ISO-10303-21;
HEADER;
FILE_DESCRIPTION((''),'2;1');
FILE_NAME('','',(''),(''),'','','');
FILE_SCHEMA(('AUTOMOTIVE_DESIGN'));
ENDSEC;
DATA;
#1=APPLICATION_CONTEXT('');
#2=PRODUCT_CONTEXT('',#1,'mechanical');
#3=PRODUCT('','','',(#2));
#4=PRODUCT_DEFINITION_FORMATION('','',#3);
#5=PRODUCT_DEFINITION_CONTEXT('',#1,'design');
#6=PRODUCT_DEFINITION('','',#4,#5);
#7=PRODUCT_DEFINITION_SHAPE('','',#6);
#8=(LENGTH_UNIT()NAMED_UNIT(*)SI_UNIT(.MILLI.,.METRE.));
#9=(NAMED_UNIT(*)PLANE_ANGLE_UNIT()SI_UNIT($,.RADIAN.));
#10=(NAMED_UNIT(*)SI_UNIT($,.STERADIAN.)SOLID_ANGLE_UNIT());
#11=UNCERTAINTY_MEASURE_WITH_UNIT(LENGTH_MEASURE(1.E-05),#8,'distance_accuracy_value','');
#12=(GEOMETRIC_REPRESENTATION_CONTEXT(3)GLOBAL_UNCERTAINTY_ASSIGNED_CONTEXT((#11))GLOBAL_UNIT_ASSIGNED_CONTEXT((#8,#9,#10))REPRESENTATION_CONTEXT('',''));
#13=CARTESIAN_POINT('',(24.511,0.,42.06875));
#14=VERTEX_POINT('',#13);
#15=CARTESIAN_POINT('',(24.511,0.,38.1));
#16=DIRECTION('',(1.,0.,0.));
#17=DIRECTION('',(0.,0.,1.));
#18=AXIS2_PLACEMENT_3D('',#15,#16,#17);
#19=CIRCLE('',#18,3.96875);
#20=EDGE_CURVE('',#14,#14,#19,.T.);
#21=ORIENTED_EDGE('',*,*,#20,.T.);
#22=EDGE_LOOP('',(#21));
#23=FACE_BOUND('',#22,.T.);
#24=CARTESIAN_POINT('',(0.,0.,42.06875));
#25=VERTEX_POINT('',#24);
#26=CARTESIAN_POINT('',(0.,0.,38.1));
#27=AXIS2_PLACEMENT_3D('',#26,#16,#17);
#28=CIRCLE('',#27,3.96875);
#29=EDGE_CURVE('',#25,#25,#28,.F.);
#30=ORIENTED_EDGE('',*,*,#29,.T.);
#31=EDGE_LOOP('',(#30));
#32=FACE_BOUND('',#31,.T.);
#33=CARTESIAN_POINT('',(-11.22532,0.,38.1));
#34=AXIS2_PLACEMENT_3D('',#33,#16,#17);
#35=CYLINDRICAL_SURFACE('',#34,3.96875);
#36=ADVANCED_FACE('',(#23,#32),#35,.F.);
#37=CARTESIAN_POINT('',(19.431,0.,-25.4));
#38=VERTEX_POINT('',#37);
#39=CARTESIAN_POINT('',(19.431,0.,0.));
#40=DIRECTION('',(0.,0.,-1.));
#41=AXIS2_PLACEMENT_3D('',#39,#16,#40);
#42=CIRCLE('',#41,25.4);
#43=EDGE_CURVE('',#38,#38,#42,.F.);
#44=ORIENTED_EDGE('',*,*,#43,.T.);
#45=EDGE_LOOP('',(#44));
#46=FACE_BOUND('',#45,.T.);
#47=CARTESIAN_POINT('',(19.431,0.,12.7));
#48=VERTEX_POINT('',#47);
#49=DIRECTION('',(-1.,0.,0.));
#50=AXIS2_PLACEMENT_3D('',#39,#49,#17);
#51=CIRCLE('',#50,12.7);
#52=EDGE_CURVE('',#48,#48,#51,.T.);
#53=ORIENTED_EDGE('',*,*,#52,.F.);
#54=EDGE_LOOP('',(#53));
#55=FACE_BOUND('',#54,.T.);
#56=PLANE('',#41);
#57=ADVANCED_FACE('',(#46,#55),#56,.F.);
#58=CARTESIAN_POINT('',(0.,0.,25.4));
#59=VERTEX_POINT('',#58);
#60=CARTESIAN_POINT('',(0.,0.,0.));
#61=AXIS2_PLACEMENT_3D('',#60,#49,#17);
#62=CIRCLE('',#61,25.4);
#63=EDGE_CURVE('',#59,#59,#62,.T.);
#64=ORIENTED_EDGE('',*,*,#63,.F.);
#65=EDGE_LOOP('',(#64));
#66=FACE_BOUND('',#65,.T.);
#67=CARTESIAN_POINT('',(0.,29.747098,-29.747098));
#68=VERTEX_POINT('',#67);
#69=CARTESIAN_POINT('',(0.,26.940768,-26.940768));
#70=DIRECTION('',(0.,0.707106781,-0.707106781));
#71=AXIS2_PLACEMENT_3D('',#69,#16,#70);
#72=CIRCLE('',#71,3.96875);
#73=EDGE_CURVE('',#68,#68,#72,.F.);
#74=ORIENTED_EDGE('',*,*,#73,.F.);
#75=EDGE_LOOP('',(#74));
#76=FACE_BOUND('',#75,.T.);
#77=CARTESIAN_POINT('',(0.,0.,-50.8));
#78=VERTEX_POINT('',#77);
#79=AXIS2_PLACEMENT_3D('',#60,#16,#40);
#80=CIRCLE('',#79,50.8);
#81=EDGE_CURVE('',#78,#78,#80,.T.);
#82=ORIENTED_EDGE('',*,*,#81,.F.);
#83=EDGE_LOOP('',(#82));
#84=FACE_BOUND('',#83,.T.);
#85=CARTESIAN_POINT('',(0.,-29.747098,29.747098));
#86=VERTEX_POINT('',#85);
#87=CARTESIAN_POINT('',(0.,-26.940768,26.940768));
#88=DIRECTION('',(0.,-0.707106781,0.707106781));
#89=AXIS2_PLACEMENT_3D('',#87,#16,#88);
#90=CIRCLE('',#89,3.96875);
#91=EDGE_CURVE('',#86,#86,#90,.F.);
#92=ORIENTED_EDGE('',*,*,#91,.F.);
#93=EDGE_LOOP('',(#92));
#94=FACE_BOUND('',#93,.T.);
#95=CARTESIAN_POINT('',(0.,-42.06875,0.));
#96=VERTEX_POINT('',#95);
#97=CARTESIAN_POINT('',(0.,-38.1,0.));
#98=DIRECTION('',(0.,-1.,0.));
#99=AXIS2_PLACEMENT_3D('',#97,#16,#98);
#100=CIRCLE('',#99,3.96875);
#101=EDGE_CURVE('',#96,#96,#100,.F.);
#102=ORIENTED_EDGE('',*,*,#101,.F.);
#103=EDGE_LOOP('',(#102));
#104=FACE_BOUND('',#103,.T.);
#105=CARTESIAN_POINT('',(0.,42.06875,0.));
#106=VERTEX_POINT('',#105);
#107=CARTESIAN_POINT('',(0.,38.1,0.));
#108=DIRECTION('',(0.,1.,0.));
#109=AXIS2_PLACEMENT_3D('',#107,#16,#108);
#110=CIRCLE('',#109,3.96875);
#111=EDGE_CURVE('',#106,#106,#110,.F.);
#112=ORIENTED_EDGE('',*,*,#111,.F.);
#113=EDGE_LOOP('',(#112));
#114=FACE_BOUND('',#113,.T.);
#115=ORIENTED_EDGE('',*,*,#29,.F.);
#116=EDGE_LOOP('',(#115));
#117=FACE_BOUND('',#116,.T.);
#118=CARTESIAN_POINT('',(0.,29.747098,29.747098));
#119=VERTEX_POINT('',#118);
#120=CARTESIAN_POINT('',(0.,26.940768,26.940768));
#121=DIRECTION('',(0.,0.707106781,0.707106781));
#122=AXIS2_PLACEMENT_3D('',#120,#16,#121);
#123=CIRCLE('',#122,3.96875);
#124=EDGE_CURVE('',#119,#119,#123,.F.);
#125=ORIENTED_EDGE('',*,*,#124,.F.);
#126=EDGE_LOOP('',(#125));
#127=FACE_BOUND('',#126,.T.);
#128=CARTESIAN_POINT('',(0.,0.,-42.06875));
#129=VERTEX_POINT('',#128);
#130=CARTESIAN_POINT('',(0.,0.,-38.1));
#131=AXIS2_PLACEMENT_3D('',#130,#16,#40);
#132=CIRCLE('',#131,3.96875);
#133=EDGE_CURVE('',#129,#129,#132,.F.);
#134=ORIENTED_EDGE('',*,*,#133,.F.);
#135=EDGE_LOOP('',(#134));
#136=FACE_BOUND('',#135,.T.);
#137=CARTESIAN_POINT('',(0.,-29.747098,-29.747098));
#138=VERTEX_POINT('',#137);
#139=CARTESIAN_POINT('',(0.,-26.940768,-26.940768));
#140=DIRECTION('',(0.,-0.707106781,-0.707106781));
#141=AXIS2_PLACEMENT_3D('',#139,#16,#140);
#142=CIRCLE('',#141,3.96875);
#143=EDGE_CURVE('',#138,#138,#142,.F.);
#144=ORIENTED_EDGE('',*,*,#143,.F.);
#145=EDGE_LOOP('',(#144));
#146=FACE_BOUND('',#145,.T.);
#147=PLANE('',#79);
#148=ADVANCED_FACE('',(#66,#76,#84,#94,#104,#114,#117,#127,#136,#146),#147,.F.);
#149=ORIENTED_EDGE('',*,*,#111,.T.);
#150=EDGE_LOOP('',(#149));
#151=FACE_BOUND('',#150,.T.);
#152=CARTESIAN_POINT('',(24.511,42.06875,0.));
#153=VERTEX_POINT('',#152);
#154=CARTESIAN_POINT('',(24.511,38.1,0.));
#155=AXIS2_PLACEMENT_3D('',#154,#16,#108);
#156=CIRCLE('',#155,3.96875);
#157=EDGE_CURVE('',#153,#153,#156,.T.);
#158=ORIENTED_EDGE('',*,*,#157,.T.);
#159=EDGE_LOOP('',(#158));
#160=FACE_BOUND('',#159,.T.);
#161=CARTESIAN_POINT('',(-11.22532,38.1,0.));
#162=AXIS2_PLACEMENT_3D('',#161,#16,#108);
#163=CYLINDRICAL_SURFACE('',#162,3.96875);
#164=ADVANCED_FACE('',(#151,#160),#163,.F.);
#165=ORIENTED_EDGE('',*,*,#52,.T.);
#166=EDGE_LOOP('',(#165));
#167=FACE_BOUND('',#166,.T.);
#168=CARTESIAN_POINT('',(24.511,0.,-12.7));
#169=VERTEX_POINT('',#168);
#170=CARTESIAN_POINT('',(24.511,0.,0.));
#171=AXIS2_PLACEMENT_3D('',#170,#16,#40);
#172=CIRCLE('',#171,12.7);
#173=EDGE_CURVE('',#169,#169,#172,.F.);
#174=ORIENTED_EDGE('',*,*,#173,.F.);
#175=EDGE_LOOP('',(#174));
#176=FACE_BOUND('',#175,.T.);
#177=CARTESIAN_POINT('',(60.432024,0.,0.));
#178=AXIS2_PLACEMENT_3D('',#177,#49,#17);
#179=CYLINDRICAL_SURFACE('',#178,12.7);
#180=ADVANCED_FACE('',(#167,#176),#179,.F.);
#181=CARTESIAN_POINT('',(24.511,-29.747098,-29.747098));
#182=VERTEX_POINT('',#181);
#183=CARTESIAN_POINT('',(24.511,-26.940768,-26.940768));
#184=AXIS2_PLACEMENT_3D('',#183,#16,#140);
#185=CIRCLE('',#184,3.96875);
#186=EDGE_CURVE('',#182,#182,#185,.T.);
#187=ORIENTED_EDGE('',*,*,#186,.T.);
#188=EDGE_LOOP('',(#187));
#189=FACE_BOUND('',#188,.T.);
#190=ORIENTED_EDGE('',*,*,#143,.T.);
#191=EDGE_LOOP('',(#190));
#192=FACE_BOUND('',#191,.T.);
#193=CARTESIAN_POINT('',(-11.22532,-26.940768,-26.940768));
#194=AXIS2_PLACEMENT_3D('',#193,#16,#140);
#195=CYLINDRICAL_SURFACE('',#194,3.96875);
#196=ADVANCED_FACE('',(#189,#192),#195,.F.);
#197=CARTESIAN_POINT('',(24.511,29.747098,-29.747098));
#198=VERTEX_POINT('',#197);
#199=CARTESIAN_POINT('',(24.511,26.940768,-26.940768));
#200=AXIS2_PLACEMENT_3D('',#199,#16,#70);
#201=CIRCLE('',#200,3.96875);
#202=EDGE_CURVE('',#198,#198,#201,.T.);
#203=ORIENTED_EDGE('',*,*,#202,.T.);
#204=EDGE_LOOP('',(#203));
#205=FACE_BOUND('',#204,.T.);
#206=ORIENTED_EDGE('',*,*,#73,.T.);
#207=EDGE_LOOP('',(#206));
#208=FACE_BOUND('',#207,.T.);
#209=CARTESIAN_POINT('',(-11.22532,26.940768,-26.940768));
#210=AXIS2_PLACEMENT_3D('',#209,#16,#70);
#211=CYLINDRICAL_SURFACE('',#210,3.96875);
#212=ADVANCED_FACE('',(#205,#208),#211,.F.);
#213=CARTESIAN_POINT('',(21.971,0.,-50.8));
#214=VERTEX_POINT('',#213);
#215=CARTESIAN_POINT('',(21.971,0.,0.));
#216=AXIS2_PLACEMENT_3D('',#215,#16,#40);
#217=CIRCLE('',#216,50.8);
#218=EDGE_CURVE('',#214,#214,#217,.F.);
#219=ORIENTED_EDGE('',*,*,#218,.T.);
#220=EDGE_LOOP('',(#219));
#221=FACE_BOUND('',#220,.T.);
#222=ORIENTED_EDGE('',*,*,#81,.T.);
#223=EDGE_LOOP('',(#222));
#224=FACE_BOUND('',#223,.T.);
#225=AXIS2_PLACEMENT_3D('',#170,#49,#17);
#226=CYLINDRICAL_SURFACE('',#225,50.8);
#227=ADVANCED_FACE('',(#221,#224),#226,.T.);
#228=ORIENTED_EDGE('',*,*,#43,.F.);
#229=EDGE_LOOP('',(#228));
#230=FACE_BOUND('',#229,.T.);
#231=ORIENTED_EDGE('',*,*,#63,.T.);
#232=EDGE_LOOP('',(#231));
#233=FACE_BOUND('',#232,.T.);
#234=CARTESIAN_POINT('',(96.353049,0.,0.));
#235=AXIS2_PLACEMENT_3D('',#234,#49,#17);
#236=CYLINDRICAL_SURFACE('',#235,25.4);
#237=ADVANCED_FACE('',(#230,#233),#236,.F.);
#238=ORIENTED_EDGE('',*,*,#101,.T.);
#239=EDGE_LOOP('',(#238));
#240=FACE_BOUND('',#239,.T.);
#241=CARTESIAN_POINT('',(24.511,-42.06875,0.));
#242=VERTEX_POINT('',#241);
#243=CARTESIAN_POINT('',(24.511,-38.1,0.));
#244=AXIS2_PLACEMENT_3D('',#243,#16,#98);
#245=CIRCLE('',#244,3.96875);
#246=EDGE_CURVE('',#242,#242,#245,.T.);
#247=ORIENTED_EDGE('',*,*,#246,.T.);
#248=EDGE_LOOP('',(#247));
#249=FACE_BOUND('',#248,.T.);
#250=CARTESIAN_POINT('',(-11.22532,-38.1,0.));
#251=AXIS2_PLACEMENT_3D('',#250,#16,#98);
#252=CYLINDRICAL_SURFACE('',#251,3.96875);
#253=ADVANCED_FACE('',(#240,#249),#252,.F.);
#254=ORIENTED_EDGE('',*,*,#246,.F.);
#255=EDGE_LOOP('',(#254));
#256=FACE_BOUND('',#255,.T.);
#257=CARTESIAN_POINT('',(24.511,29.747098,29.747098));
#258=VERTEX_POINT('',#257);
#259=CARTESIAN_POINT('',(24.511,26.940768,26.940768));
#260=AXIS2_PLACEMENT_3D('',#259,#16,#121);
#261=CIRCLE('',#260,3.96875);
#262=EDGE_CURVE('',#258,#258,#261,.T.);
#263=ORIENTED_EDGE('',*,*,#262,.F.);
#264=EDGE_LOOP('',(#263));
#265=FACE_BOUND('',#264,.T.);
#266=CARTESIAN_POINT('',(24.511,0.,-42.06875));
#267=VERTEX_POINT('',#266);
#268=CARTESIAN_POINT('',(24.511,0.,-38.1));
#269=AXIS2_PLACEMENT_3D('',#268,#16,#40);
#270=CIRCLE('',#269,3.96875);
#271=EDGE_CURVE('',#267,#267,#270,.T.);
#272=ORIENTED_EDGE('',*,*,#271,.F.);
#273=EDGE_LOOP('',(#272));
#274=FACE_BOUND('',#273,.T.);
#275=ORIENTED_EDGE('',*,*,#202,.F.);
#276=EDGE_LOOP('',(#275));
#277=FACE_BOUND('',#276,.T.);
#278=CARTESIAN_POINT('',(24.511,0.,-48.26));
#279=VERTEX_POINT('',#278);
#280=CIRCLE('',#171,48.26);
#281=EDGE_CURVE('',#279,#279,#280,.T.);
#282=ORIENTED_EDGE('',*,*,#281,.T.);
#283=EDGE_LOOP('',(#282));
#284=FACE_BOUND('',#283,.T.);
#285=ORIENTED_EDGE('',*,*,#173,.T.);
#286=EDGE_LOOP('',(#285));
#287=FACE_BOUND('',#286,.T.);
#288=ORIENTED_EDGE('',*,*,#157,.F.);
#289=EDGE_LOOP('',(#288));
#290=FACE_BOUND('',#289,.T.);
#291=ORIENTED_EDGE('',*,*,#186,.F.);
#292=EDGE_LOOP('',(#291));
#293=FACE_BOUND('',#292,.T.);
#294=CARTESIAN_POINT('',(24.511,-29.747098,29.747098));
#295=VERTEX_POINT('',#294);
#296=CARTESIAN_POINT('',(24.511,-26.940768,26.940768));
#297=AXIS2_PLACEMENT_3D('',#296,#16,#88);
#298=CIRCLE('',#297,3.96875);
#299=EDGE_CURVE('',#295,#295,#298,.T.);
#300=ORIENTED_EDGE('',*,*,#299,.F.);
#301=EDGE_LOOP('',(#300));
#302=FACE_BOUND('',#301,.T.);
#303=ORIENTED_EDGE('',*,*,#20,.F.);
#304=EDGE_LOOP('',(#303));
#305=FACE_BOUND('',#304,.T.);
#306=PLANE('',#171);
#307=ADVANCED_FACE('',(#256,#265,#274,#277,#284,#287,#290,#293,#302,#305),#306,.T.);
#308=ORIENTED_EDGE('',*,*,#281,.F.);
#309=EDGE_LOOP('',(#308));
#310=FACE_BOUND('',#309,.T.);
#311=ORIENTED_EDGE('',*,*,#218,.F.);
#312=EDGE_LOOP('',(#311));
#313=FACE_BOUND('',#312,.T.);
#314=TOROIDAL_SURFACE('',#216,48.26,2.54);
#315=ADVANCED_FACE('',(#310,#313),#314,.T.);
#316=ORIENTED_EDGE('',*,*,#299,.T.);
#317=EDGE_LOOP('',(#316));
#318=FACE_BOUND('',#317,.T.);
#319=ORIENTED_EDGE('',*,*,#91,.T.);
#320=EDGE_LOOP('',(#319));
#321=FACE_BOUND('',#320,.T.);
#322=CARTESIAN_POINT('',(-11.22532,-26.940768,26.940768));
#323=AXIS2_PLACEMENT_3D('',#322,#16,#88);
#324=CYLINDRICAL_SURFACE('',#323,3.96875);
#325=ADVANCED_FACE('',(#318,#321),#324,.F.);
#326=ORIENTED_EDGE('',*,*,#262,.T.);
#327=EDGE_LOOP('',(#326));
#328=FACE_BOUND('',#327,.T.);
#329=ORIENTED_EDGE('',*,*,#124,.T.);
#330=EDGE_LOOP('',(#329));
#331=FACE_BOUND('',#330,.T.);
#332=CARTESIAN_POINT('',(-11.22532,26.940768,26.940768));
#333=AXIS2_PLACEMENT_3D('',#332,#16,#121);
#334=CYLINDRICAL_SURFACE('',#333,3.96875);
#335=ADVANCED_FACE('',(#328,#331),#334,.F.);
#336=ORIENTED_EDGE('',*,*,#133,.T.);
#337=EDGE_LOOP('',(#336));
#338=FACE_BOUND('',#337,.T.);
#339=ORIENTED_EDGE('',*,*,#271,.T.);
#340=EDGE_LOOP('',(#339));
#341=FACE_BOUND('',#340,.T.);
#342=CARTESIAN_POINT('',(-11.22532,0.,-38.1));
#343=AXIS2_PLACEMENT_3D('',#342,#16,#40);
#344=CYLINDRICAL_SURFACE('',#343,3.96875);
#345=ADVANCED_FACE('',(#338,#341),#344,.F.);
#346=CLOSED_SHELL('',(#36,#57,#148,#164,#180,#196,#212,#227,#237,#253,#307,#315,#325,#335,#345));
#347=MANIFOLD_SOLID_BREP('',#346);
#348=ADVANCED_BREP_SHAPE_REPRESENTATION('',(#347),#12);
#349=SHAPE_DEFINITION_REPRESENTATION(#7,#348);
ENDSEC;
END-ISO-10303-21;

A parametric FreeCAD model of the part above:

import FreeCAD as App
import Part
import Sketcher
from FreeCAD import Vector
Q = App.Units.Quantity


def edges_at(feature, points):
    """Names of the edges that pass closest to the given points."""
    edges = feature.Shape.Edges
    near = lambda p: min(range(len(edges)), key=lambda i: edges[i].distToShape(Part.Vertex(*p))[0])
    return sorted({f"Edge{near(p) + 1}" for p in points})

doc = App.newDocument("Part")
body = doc.addObject("PartDesign::Body", "Body")

sketch1 = doc.addObject("Sketcher::SketchObject", "Sketch")
body.addObject(sketch1)
sketch1.AttachmentSupport = (doc.YZ_Plane, [""])
sketch1.MapMode = "FlatFace"
sketch1.addGeometry(Part.Circle(Vector(0, 0, 0), Vector(0, 0, 1), 51), False)
sketch1.addConstraint(Sketcher.Constraint("Coincident", 0, 3, -1, 1))
sketch1.addConstraint(Sketcher.Constraint("Diameter", 0, Q("4 in")))
pad1 = doc.addObject("PartDesign::Pad", "Pad")
body.addObject(pad1)
pad1.Profile = sketch1
pad1.Length = Q("0.965 in")
doc.recompute()

fillet = doc.addObject("PartDesign::Fillet", "Fillet")
body.addObject(fillet)
fillet.Base = (pad1, edges_at(pad1, [(24.511, 0, 50.8)]))
fillet.Radius = Q("0.1 in")

sketch2 = doc.addObject("Sketcher::SketchObject", "Sketch001")
body.addObject(sketch2)
sketch2.AttachmentSupport = (doc.YZ_Plane, [""])
sketch2.MapMode = "FlatFace"
sketch2.AttachmentOffset = App.Placement(Vector(0, 0, 0.965 * 25.4), App.Rotation())
sketch2.addGeometry(Part.Circle(Vector(0, -38.1, 0), Vector(0, 0, 1), 4), False)
sketch2.addConstraint(Sketcher.Constraint("PointOnObject", 0, 3, -2))
sketch2.addConstraint(Sketcher.Constraint("Diameter", 0, Q("0.3125 in")))
sketch2.addConstraint(Sketcher.Constraint("DistanceY", 0, 3, -1, 1, Q("1.5 in")))
pocket1 = doc.addObject("PartDesign::Pocket", "Pocket")
body.addObject(pocket1)
pocket1.Profile = sketch2
pocket1.Length = Q("0.965 in")
doc.recompute()

polarpattern = doc.addObject("PartDesign::PolarPattern", "PolarPattern")
body.addObject(polarpattern)
polarpattern.Originals = [pocket1]
polarpattern.Axis = (doc.X_Axis, [""])
polarpattern.Angle = 360
polarpattern.Occurrences = 8
body.Tip = polarpattern

sketch3 = doc.addObject("Sketcher::SketchObject", "Sketch002")
body.addObject(sketch3)
sketch3.AttachmentSupport = (doc.YZ_Plane, [""])
sketch3.MapMode = "FlatFace"
sketch3.addGeometry(Part.Circle(Vector(0, 0, 0), Vector(0, 0, 1), 25), False)
sketch3.addConstraint(Sketcher.Constraint("Coincident", 0, 3, -1, 1))
sketch3.addConstraint(Sketcher.Constraint("Diameter", 0, Q("2 in")))
pocket2 = doc.addObject("PartDesign::Pocket", "Pocket001")
body.addObject(pocket2)
pocket2.Profile = sketch3
pocket2.Length = Q("0.765 in")
pocket2.Reversed = True

sketch4 = doc.addObject("Sketcher::SketchObject", "Sketch003")
body.addObject(sketch4)
sketch4.AttachmentSupport = (doc.YZ_Plane, [""])
sketch4.MapMode = "FlatFace"
sketch4.AttachmentOffset = App.Placement(Vector(0, 0, 0.765 * 25.4), App.Rotation())
sketch4.addGeometry(Part.Circle(Vector(0, 0, 0), Vector(0, 0, 1), 13), False)
sketch4.addConstraint(Sketcher.Constraint("Coincident", 0, 3, -1, 1))
sketch4.addConstraint(Sketcher.Constraint("Diameter", 0, Q("1 in")))
pocket3 = doc.addObject("PartDesign::Pocket", "Pocket002")
body.addObject(pocket3)
pocket3.Profile = sketch4
pocket3.Length = Q("0.2 in")
pocket3.Reversed = True

doc.recompute()
